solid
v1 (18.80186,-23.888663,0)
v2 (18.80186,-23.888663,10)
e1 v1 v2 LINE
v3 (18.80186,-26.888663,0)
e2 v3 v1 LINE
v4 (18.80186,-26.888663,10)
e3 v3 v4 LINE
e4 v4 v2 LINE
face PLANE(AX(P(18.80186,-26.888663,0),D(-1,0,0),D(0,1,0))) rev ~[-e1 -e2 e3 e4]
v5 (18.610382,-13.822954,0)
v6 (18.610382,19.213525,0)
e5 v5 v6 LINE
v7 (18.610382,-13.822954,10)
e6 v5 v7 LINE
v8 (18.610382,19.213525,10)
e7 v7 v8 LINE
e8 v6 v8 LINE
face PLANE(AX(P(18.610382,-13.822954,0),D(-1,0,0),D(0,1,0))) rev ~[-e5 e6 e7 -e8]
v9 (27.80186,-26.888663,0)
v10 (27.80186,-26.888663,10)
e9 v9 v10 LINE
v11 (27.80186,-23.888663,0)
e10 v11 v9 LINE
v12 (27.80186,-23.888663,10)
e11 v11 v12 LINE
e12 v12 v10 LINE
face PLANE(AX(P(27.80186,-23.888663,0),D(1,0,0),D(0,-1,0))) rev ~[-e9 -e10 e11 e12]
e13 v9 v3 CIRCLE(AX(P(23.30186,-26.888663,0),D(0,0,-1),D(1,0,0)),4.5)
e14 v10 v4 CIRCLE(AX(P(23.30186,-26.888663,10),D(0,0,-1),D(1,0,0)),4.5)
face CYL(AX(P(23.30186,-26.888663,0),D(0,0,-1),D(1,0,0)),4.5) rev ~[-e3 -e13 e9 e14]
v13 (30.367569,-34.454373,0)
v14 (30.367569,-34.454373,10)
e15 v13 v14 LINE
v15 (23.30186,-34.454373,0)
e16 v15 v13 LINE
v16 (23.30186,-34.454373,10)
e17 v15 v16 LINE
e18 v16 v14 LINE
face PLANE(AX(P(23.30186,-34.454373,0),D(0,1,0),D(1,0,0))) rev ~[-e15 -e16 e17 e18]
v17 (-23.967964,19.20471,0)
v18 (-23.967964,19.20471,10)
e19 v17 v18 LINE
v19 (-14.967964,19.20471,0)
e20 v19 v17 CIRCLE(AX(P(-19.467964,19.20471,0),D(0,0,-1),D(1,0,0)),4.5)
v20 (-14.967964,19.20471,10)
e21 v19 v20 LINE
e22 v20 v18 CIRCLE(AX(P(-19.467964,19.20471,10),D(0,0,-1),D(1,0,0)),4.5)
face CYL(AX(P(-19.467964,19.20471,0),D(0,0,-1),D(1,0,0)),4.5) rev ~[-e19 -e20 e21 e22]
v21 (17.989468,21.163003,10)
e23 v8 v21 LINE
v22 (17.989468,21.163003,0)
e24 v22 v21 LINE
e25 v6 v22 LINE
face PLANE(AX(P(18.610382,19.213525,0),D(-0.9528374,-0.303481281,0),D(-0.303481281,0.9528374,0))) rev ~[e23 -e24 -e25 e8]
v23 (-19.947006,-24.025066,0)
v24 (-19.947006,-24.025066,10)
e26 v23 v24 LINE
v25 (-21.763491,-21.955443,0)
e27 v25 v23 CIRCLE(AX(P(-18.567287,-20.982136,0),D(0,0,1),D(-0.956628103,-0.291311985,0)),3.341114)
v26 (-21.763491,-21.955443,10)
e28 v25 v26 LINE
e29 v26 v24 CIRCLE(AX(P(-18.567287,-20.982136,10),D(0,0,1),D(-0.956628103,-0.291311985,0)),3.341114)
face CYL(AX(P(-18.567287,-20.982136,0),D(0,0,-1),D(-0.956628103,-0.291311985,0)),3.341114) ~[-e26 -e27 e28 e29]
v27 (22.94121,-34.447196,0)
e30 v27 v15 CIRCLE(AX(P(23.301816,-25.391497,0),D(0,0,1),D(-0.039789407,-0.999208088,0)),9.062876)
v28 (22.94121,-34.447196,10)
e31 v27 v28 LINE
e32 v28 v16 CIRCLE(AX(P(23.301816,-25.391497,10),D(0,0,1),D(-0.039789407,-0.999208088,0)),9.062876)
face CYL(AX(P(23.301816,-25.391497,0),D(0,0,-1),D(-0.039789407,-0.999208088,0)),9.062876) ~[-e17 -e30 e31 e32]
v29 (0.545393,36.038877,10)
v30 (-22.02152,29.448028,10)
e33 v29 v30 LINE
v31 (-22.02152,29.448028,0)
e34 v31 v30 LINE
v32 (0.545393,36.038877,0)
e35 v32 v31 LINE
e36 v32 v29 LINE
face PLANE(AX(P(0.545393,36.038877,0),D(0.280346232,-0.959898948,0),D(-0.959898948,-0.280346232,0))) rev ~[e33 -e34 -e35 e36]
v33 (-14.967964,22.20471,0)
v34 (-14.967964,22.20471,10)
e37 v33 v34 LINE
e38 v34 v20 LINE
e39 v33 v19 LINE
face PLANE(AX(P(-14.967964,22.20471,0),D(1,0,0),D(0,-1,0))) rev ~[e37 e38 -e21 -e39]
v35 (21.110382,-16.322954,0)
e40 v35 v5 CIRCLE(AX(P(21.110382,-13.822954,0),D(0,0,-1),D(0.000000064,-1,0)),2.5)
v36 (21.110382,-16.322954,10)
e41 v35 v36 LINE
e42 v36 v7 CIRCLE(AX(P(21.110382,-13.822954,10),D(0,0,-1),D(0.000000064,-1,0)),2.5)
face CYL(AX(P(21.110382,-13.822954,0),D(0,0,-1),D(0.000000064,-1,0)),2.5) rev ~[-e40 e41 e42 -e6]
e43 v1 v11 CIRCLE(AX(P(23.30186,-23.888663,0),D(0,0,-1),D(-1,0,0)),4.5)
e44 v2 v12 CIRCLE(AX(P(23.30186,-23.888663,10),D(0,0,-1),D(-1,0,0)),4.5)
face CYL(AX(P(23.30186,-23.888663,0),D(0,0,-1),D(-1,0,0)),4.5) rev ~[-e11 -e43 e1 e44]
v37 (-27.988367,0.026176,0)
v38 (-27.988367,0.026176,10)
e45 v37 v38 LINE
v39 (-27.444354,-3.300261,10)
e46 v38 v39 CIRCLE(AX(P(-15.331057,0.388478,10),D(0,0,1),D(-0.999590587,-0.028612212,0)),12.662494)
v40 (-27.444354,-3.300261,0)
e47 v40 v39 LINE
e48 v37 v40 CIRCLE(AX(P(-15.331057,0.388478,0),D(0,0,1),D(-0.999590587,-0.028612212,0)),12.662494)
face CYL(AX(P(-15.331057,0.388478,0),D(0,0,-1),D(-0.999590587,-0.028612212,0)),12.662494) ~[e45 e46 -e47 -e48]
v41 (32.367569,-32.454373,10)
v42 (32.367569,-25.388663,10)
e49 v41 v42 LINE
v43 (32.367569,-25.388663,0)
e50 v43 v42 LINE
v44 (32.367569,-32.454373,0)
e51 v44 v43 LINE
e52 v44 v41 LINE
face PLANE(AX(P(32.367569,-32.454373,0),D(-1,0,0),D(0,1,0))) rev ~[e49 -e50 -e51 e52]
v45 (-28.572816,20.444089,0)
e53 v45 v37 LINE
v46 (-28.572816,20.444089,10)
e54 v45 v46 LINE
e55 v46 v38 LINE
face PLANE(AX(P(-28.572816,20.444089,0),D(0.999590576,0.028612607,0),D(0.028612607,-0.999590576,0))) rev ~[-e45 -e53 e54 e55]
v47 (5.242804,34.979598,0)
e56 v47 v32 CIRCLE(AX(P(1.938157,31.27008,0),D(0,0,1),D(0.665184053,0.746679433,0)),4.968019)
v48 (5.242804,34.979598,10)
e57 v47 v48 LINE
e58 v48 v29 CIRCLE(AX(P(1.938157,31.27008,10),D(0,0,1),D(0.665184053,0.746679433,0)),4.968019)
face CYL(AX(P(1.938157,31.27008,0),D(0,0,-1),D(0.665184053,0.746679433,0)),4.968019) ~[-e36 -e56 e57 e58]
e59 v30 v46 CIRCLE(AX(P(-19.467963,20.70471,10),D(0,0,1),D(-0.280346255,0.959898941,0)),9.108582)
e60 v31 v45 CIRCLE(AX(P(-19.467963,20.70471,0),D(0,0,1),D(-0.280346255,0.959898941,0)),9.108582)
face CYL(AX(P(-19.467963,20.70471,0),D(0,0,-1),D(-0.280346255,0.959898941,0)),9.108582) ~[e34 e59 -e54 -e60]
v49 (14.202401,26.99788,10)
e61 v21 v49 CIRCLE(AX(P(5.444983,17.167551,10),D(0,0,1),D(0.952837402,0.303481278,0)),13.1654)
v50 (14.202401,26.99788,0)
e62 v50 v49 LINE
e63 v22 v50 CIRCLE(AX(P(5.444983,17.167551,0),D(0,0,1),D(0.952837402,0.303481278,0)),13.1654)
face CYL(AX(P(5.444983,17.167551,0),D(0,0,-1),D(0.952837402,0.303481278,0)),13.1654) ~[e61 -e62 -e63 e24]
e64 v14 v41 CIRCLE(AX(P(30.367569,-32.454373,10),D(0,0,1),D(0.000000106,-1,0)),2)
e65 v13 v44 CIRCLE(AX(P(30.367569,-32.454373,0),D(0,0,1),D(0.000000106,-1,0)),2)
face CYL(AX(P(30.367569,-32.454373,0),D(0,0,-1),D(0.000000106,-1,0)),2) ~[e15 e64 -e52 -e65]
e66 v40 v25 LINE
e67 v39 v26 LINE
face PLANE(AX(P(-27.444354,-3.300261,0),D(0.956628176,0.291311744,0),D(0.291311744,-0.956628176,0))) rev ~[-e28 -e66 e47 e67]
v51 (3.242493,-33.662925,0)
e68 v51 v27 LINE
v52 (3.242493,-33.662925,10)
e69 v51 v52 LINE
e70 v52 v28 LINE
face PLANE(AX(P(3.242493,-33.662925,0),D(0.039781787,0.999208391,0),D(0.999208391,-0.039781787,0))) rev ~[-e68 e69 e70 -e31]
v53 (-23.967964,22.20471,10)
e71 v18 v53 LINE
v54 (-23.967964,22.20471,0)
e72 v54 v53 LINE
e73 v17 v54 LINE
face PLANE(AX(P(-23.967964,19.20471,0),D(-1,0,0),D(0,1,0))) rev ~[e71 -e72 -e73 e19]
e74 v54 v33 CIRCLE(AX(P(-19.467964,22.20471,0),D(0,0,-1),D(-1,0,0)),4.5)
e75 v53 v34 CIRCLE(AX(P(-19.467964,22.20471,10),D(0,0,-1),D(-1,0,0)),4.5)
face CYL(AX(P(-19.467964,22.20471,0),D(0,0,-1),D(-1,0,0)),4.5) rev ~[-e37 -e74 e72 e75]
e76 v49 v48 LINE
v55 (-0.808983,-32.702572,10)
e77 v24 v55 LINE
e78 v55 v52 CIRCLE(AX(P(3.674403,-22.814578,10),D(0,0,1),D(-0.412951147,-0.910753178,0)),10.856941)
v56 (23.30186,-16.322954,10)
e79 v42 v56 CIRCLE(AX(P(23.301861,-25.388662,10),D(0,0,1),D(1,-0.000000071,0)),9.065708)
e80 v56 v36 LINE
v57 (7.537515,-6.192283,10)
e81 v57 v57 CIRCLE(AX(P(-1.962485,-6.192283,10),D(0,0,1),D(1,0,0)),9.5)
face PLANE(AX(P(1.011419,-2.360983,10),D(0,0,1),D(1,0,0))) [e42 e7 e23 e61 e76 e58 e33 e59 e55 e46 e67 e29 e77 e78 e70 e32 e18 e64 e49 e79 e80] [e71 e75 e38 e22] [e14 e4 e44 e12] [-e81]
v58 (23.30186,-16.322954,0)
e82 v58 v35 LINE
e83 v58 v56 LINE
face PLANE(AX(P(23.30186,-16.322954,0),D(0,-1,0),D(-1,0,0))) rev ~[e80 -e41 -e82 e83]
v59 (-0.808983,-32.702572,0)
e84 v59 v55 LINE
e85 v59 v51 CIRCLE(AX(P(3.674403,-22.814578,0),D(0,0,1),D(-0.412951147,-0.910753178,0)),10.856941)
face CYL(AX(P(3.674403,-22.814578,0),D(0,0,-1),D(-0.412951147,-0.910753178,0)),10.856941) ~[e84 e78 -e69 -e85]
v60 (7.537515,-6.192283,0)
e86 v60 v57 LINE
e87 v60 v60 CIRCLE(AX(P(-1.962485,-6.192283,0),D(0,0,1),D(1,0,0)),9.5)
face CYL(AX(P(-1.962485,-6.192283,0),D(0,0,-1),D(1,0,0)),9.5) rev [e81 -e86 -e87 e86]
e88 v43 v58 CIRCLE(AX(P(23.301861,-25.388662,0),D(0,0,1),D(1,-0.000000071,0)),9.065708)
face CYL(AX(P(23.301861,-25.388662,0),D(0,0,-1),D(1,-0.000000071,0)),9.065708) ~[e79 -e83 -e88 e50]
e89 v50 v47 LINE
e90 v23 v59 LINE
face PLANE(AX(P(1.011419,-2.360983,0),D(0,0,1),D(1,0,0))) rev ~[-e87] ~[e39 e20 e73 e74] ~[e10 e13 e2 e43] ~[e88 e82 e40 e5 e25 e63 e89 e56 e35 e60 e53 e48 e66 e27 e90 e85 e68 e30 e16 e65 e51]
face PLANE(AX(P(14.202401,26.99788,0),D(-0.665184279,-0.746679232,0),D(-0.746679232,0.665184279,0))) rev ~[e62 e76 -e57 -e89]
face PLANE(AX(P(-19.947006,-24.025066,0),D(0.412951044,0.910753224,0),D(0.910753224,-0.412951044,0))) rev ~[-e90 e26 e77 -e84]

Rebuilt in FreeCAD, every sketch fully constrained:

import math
import FreeCAD as App
import Part
import Sketcher
Q = App.Units.Quantity

doc = App.newDocument("Part")
body = doc.addObject("PartDesign::Body", "Body")

# Sketch on XY plane
sketch1 = body.newObject("Sketcher::SketchObject", "Sketch")
sketch1.AttachmentSupport = (doc.getObject("XY_Plane"), [""])
sketch1.MapMode = "FlatFace"
sketch1.addGeometry([
    Part.LineSegment(App.Vector(0.55, 36.04, 0), App.Vector(-22.02, 29.45, 0)),  # 0
    Part.ArcOfCircle(Part.Circle(App.Vector(-19.47, 20.7, 0), App.Vector(0, 0, 1), 9.11), math.radians(106), math.radians(182)),  # 1
    Part.LineSegment(App.Vector(-28.57, 20.44, 0), App.Vector(-27.99, 0.03, 0)),  # 2
    Part.ArcOfCircle(Part.Circle(App.Vector(-15.33, 0.39, 0), App.Vector(0, 0, 1), 12.66), math.radians(-178.36), math.radians(-163.06)),  # 3
    Part.LineSegment(App.Vector(-27.44, -3.3, 0), App.Vector(-21.76, -21.96, 0)),  # 4
    Part.ArcOfCircle(Part.Circle(App.Vector(-18.57, -20.98, 0), App.Vector(0, 0, 1), 3.34), math.radians(-163), math.radians(-114)),  # 5
    Part.LineSegment(App.Vector(-19.95, -24.03, 0), App.Vector(-0.81, -32.7, 0)),  # 6
    Part.ArcOfCircle(Part.Circle(App.Vector(3.67, -22.81, 0), App.Vector(0, 0, 1), 10.86), math.radians(-114), math.radians(-92)),  # 7
    Part.LineSegment(App.Vector(3.24, -33.66, 0), App.Vector(22.94, -34.45, 0)),  # 8
    Part.ArcOfCircle(Part.Circle(App.Vector(23.3, -25.39, 0), App.Vector(0, 0, 1), 9.06), math.radians(-92.28), math.radians(-90)),  # 9
    Part.LineSegment(App.Vector(23.3, -34.45, 0), App.Vector(30.37, -34.45, 0)),  # 10
    Part.ArcOfCircle(Part.Circle(App.Vector(30.37, -32.45, 0), App.Vector(0, 0, 1), 2), math.radians(-90), math.radians(0)),  # 11
    Part.LineSegment(App.Vector(32.37, -32.45, 0), App.Vector(32.37, -25.39, 0)),  # 12
    Part.ArcOfCircle(Part.Circle(App.Vector(23.3, -25.39, 0), App.Vector(0, 0, 1), 9.07), math.radians(0), math.radians(90)),  # 13
    Part.LineSegment(App.Vector(23.3, -16.32, 0), App.Vector(21.11, -16.32, 0)),  # 14
    Part.ArcOfCircle(Part.Circle(App.Vector(21.11, -13.82, 0), App.Vector(0, 0, 1), 2.5), math.radians(180), math.radians(270)),  # 15
    Part.LineSegment(App.Vector(18.61, -13.82, 0), App.Vector(18.61, 19.21, 0)),  # 16
    Part.LineSegment(App.Vector(18.61, 19.21, 0), App.Vector(17.99, 21.16, 0)),  # 17
    Part.ArcOfCircle(Part.Circle(App.Vector(5.44, 17.17, 0), App.Vector(0, 0, 1), 13.17), math.radians(18), math.radians(48)),  # 18
    Part.LineSegment(App.Vector(14.2, 27, 0), App.Vector(5.24, 34.98, 0)),  # 19
    Part.ArcOfCircle(Part.Circle(App.Vector(1.94, 31.27, 0), App.Vector(0, 0, 1), 4.97), math.radians(48), math.radians(106)),  # 20
    Part.Circle(App.Vector(-1.96, -6.19, 0), App.Vector(0, 0, 1), 9.5),  # 21
    Part.LineSegment(App.Vector(18.8, -26.89, 0), App.Vector(18.8, -23.89, 0)),  # 22
    Part.ArcOfCircle(Part.Circle(App.Vector(23.3, -23.89, 0), App.Vector(0, 0, 1), 4.5), math.radians(0), math.radians(180)),  # 23
    Part.LineSegment(App.Vector(27.8, -23.89, 0), App.Vector(27.8, -26.89, 0)),  # 24
    Part.ArcOfCircle(Part.Circle(App.Vector(23.3, -26.89, 0), App.Vector(0, 0, 1), 4.5), math.radians(180), math.radians(360)),  # 25
    Part.LineSegment(App.Vector(-23.97, 19.2, 0), App.Vector(-23.97, 22.2, 0)),  # 26
    Part.ArcOfCircle(Part.Circle(App.Vector(-19.47, 22.2, 0), App.Vector(0, 0, 1), 4.5), math.radians(0), math.radians(180)),  # 27
    Part.LineSegment(App.Vector(-14.97, 22.2, 0), App.Vector(-14.97, 19.2, 0)),  # 28
    Part.ArcOfCircle(Part.Circle(App.Vector(-19.47, 19.2, 0), App.Vector(0, 0, 1), 4.5), math.radians(180), math.radians(360)),  # 29
], False)
sketch1.addConstraint([
    Sketcher.Constraint("Tangent", 0, 2, 1, 1),
    Sketcher.Constraint("Tangent", 1, 2, 2, 1),
    Sketcher.Constraint("Tangent", 2, 2, 3, 1),
    Sketcher.Constraint("Tangent", 3, 2, 4, 1),
    Sketcher.Constraint("Tangent", 4, 2, 5, 1),
    Sketcher.Constraint("Tangent", 5, 2, 6, 1),
    Sketcher.Constraint("Tangent", 6, 2, 7, 1),
    Sketcher.Constraint("Tangent", 7, 2, 8, 1),
    Sketcher.Constraint("Coincident", 8, 2, 9, 1),
    Sketcher.Constraint("Coincident", 9, 2, 10, 1),
    Sketcher.Constraint("Tangent", 10, 2, 11, 1),
    Sketcher.Constraint("Tangent", 11, 2, 12, 1),
    Sketcher.Constraint("Tangent", 12, 2, 13, 1),
    Sketcher.Constraint("Tangent", 13, 2, 14, 1),
    Sketcher.Constraint("Tangent", 14, 2, 15, 2),
    Sketcher.Constraint("Tangent", 15, 1, 16, 1),
    Sketcher.Constraint("Coincident", 16, 2, 17, 1),
    Sketcher.Constraint("Tangent", 17, 2, 18, 1),
    Sketcher.Constraint("Tangent", 18, 2, 19, 1),
    Sketcher.Constraint("Tangent", 19, 2, 20, 1),
    Sketcher.Constraint("Tangent", 20, 2, 0, 1),
    Sketcher.Constraint("Tangent", 22, 2, 23, 2),
    Sketcher.Constraint("Tangent", 23, 1, 24, 1),
    Sketcher.Constraint("Tangent", 24, 2, 25, 2),
    Sketcher.Constraint("Tangent", 25, 1, 22, 1),
    Sketcher.Constraint("Tangent", 26, 2, 27, 2),
    Sketcher.Constraint("Tangent", 27, 1, 28, 1),
    Sketcher.Constraint("Tangent", 28, 2, 29, 2),
    Sketcher.Constraint("Tangent", 29, 1, 26, 1),
    Sketcher.Constraint("Horizontal", 10),
    Sketcher.Constraint("Vertical", 12),
    Sketcher.Constraint("Horizontal", 14),
    Sketcher.Constraint("Vertical", 16),
    Sketcher.Constraint("Vertical", 22),
    Sketcher.Constraint("Vertical", 24),
    Sketcher.Constraint("Vertical", 26),
    Sketcher.Constraint("Vertical", 28),
    Sketcher.Constraint("Equal", 25, 27),
    Sketcher.Constraint("Vertical", 13, 3, 23, 3),
    Sketcher.Constraint("Vertical", 1, 3, 27, 3),
    Sketcher.Constraint("Vertical", 25, 3, 9, 2),
    Sketcher.Constraint("Equal", 10, 12),
    Sketcher.Constraint("Equal", 24, 26),
    Sketcher.Constraint("Diameter", 21, Q("19 mm")),
    Sketcher.Constraint("Radius", 11, Q("2 mm")),
    Sketcher.Constraint("Radius", 15, Q("2.5 mm")),
    Sketcher.Constraint("Radius", 23, Q("4.5 mm")),
    Sketcher.Constraint("DistanceY", 22, 1, 22, 2, Q("3 mm")),
    Sketcher.Constraint("Radius", 18, Q("13.1654 mm")),
    Sketcher.Constraint("DistanceY", 13, 3, 23, 3, Q("1.499999 mm")),
    Sketcher.Constraint("DistanceY", 1, 3, 27, 3, Q("1.5 mm")),
    Sketcher.Constraint("Radius", 7, Q("10.856941 mm")),
    Sketcher.Constraint("Radius", 13, Q("9.065708 mm")),
    Sketcher.Constraint("Radius", 20, Q("4.968019 mm")),
    Sketcher.Constraint("Radius", 1, Q("9.108582 mm")),
    Sketcher.Constraint("Radius", 3, Q("12.662494 mm")),
    Sketcher.Constraint("Radius", 5, Q("3.341114 mm")),
    Sketcher.Constraint("Radius", 9, Q("9.062876 mm")),
    Sketcher.Constraint("Distance", 6, Q("21.013401 mm")),
    Sketcher.Constraint("DistanceX", 14, 2, 14, 1, Q("2.191478 mm")),
    Sketcher.Constraint("DistanceY", 16, 1, 16, 2, Q("33.036479 mm")),
    Sketcher.Constraint("DistanceX", -1, 1, 18, 2, Q("14.202401 mm")),
    Sketcher.Constraint("DistanceY", -1, 1, 19, 2, Q("34.979598 mm")),
    Sketcher.Constraint("DistanceX", 18, 3, 15, 3, Q("15.665399 mm")),
    Sketcher.Constraint("DistanceY", 2, 2, 3, 3, Q("0.362302 mm")),
    Sketcher.Constraint("DistanceY", 8, 2, 9, 3, Q("9.055699 mm")),
    Sketcher.Constraint("DistanceY", 18, 2, 20, 3, Q("4.2722 mm")),
    Sketcher.Constraint("Distance", 17, Q("2.045971 mm")),
    Sketcher.Constraint("Distance", 19, Q("11.999258 mm")),
    Sketcher.Constraint("DistanceY", -1, 1, 1, 3, Q("20.70471 mm")),
    Sketcher.Constraint("DistanceY", 7, 3, -1, 1, Q("22.814578 mm")),
    Sketcher.Constraint("DistanceX", 0, 2, -1, 1, Q("22.02152 mm")),
    Sketcher.Constraint("DistanceY", 3, 2, -1, 1, Q("3.300261 mm")),
    Sketcher.Constraint("DistanceX", 4, 2, -1, 1, Q("21.763491 mm")),
    Sketcher.Constraint("DistanceX", -1, 1, 8, 2, Q("22.94121 mm")),
    Sketcher.Constraint("DistanceY", 3, 3, 1, 3, Q("20.316232 mm")),
    Sketcher.Constraint("DistanceX", 3, 3, 21, 3, Q("13.368572 mm")),
    Sketcher.Constraint("DistanceY", 21, 3, 3, 3, Q("6.580761 mm")),
])
pad1 = body.newObject("PartDesign::Pad", "Pad")
pad1.Profile = sketch1
pad1.Length = 10

doc.recompute()
